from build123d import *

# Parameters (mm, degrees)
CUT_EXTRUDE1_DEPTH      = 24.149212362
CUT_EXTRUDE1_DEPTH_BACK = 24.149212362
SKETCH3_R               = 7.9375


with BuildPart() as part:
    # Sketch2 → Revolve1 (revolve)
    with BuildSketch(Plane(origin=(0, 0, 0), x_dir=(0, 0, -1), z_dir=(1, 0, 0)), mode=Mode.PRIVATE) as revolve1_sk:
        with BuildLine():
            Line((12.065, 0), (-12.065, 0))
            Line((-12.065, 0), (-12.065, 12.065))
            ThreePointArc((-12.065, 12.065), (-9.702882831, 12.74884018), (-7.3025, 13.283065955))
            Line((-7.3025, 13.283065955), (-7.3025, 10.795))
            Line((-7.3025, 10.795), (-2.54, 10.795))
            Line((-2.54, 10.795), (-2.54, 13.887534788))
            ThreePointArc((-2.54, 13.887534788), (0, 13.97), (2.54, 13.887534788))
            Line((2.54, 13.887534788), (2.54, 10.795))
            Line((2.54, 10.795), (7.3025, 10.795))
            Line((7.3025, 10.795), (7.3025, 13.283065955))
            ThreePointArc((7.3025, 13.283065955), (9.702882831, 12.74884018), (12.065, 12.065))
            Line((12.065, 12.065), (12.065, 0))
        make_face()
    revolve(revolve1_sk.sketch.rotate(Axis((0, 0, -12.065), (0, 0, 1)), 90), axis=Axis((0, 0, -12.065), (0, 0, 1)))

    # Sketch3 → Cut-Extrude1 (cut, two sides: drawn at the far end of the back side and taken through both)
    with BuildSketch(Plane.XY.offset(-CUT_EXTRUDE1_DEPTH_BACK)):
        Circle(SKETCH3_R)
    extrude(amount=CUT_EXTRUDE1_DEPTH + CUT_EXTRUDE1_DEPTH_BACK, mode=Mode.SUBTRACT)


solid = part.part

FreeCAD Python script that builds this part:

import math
import FreeCAD as App
import Part
import Sketcher

V = App.Vector
Q = App.Units.Quantity

doc = App.newDocument("Part")
body = doc.addObject("PartDesign::Body", "Body")

# Sketch on YZ plane
sketch1 = body.newObject("Sketcher::SketchObject", "Sketch")
sketch1.AttachmentSupport = (doc.getObject("YZ_Plane"), [""])
sketch1.MapMode = "FlatFace"
sketch1.addGeometry(Part.LineSegment(V(0, 12.065, 0), V(0, -12.065, 0)), False)
sketch1.addGeometry(Part.LineSegment(V(0, -12.065, 0), V(12.065, -12.065, 0)), False)
sketch1.addGeometry(Part.ArcOfCircle(Part.Circle(V(-25.188334, 0, 0), V(0, 0, 1), 39.158334), math.radians(-17.945253), math.radians(-10.74781)), False)
sketch1.addGeometry(Part.LineSegment(V(13.283066, -7.3025, 0), V(10.795, -7.3025, 0)), False)
sketch1.addGeometry(Part.LineSegment(V(10.795, -7.3025, 0), V(10.795, -2.54, 0)), False)
sketch1.addGeometry(Part.LineSegment(V(10.795, -2.54, 0), V(13.887535, -2.54, 0)), False)
sketch1.addGeometry(Part.ArcOfCircle(Part.Circle(V(-25.188333, 0, 0), V(0, 0, 1), 39.158333), math.radians(-3.719094), math.radians(3.719094)), False)
sketch1.addGeometry(Part.LineSegment(V(13.887535, 2.54, 0), V(10.795, 2.54, 0)), False)
sketch1.addGeometry(Part.LineSegment(V(10.795, 2.54, 0), V(10.795, 7.3025, 0)), False)
sketch1.addGeometry(Part.LineSegment(V(10.795, 7.3025, 0), V(13.283066, 7.3025, 0)), False)
sketch1.addGeometry(Part.ArcOfCircle(Part.Circle(V(-25.188334, 0, 0), V(0, 0, 1), 39.158334), math.radians(10.74781), math.radians(17.945253)), False)
sketch1.addGeometry(Part.LineSegment(V(12.065, 12.065, 0), V(0, 12.065, 0)), False)
sketch1.addConstraint(Sketcher.Constraint("Coincident", 0, 2, 1, 1))
sketch1.addConstraint(Sketcher.Constraint("Coincident", 1, 2, 2, 1))
sketch1.addConstraint(Sketcher.Constraint("Coincident", 2, 2, 3, 1))
sketch1.addConstraint(Sketcher.Constraint("Coincident", 3, 2, 4, 1))
sketch1.addConstraint(Sketcher.Constraint("Coincident", 4, 2, 5, 1))
sketch1.addConstraint(Sketcher.Constraint("Coincident", 5, 2, 6, 1))
sketch1.addConstraint(Sketcher.Constraint("Coincident", 6, 2, 7, 1))
sketch1.addConstraint(Sketcher.Constraint("Coincident", 7, 2, 8, 1))
sketch1.addConstraint(Sketcher.Constraint("Coincident", 8, 2, 9, 1))
sketch1.addConstraint(Sketcher.Constraint("Coincident", 9, 2, 10, 1))
sketch1.addConstraint(Sketcher.Constraint("Coincident", 10, 2, 11, 1))
sketch1.addConstraint(Sketcher.Constraint("Coincident", 11, 2, 0, 1))
sketch1.addConstraint(Sketcher.Constraint("Vertical", 0))
sketch1.addConstraint(Sketcher.Constraint("Horizontal", 1))
sketch1.addConstraint(Sketcher.Constraint("Horizontal", 3))
sketch1.addConstraint(Sketcher.Constraint("Vertical", 4))
sketch1.addConstraint(Sketcher.Constraint("Horizontal", 5))
sketch1.addConstraint(Sketcher.Constraint("Horizontal", 7))
sketch1.addConstraint(Sketcher.Constraint("Vertical", 8))
sketch1.addConstraint(Sketcher.Constraint("Horizontal", 9))
sketch1.addConstraint(Sketcher.Constraint("Horizontal", 11))
sketch1.addConstraint(Sketcher.Constraint("Coincident", 6, 3, 2, 3))
sketch1.addConstraint(Sketcher.Constraint("Coincident", 10, 3, 2, 3))
sketch1.addConstraint(Sketcher.Constraint("Equal", 2, 6))
sketch1.addConstraint(Sketcher.Constraint("Equal", 6, 10))
sketch1.addConstraint(Sketcher.Constraint("Symmetric", 0, 2, 11, 2, -1, 1))
sketch1.addConstraint(Sketcher.Constraint("Symmetric", 5, 2, 6, 2, -1))
sketch1.addConstraint(Sketcher.Constraint("Symmetric", 3, 2, 8, 2, -1))
sketch1.addConstraint(Sketcher.Constraint("DistanceY", 0, 2, 0, 1, Q("0.95 in")))
sketch1.addConstraint(Sketcher.Constraint("DistanceY", 4, 2, -1, 1, Q("0.1 in")))
sketch1.addConstraint(Sketcher.Constraint("DistanceX", 1, 1, 1, 2, Q("0.475 in")))
sketch1.addConstraint(Sketcher.Constraint("DistanceY", 4, 1, 4, 2, Q("0.1875 in")))
sketch1.addConstraint(Sketcher.Constraint("DistanceX", 3, 2, 1, 2, Q("0.05 in")))
sketch1.addConstraint(Sketcher.Constraint("Radius", 2, 39.158334))
revolution = body.newObject("PartDesign::Revolution", "Revolution")
revolution.Profile = sketch1
revolution.ReferenceAxis = (sketch1, ["V_Axis"])
revolution.Angle = 360

# Sketch on XY plane
sketch2 = body.newObject("Sketcher::SketchObject", "Sketch001")
sketch2.AttachmentSupport = (doc.getObject("XY_Plane"), [""])
sketch2.MapMode = "FlatFace"
sketch2.addGeometry(Part.Circle(V(0, 0, 0), V(0, 0, 1), 7.9375), False)
sketch2.addConstraint(Sketcher.Constraint("Coincident", 0, 3, -1, 1))
sketch2.addConstraint(Sketcher.Constraint("Diameter", 0, Q("0.625 in")))
pocket1 = body.newObject("PartDesign::Pocket", "Pocket")
pocket1.Profile = sketch2
pocket1.Type = "ThroughAll"
pocket1.Midplane = True

doc.recompute()
